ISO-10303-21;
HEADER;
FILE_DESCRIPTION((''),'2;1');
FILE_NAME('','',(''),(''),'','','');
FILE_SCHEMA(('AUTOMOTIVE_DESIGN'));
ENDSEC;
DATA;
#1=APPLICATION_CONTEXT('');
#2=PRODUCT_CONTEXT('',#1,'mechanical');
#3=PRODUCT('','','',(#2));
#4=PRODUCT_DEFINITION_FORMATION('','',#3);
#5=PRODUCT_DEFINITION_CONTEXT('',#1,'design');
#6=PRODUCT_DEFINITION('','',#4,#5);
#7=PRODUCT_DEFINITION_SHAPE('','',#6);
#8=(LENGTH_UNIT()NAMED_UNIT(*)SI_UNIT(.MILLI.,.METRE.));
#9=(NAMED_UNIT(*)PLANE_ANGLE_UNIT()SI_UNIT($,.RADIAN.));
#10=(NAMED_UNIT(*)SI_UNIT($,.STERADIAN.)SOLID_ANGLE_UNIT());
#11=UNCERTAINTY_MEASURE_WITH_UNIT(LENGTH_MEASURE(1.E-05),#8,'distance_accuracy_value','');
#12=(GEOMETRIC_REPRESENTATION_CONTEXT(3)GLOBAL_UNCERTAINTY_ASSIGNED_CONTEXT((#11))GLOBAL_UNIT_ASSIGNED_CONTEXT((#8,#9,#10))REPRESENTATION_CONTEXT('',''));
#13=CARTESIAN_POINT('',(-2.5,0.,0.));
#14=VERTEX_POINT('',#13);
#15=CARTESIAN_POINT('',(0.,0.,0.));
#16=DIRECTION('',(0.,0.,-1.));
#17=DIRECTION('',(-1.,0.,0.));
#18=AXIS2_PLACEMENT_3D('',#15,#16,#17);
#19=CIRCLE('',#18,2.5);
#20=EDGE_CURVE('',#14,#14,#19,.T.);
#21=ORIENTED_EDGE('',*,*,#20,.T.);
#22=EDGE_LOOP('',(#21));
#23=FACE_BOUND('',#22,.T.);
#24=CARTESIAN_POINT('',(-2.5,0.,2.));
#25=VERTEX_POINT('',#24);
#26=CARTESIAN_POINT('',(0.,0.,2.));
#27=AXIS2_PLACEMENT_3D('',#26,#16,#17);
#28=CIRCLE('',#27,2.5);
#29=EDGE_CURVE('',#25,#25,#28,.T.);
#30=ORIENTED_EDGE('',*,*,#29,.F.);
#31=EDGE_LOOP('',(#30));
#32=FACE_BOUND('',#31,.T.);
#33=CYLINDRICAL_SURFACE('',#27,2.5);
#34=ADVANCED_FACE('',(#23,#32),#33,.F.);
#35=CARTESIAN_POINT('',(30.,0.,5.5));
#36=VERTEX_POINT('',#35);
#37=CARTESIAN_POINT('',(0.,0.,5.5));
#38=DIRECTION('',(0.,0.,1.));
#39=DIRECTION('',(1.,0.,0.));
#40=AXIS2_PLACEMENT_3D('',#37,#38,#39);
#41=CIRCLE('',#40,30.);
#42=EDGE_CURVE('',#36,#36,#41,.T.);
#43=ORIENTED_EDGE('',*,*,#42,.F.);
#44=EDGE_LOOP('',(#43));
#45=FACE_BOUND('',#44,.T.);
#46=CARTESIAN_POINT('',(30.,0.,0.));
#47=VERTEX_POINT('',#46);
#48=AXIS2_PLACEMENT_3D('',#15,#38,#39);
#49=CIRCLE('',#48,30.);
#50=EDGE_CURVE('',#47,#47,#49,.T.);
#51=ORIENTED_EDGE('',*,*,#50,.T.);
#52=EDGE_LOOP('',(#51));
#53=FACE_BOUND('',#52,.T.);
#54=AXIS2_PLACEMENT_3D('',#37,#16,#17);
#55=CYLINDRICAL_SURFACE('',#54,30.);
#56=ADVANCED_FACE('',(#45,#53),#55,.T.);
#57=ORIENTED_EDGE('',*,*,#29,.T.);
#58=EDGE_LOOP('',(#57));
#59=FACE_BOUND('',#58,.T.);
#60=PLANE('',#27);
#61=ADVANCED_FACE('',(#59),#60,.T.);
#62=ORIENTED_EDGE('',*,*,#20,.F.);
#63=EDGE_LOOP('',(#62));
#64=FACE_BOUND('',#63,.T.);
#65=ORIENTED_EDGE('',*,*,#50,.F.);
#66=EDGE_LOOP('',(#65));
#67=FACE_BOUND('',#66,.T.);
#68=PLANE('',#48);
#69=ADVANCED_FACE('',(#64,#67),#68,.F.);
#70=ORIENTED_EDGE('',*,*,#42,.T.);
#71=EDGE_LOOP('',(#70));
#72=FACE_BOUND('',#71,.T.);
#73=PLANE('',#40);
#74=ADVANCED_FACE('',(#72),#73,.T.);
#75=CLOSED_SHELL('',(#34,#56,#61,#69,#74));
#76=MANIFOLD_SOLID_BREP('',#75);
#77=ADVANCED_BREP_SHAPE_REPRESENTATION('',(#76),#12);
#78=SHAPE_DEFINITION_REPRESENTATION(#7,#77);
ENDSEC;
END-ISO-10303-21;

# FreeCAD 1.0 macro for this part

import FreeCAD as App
import Part
import Sketcher
from FreeCAD import Vector
Q = App.Units.Quantity

doc = App.newDocument("Part")
body = doc.addObject("PartDesign::Body", "Body")

# Sketch on XY plane
sketch1 = body.newObject("Sketcher::SketchObject", "Sketch")
sketch1.AttachmentSupport = (doc.getObject("XY_Plane"), [""])
sketch1.MapMode = "FlatFace"
sketch1.addGeometry(Part.Circle(Vector(0, 0, 0), Vector(0, 0, 1), 30), False)
sketch1.addConstraint([
    Sketcher.Constraint("Coincident", 0, 3, -1, 1),
    Sketcher.Constraint("Diameter", 0, Q("60 mm")),
])
pad1 = body.newObject("PartDesign::Pad", "Pad")
pad1.Profile = sketch1
pad1.Length = 5.5

# Sketch on XY plane
sketch2 = body.newObject("Sketcher::SketchObject", "Sketch001")
sketch2.AttachmentSupport = (doc.getObject("XY_Plane"), [""])
sketch2.MapMode = "FlatFace"
sketch2.addGeometry(Part.Circle(Vector(0, 0, 0), Vector(0, 0, 1), 2.5), False)
sketch2.addConstraint([
    Sketcher.Constraint("Coincident", 0, 3, -1, 1),
    Sketcher.Constraint("Diameter", 0, Q("5 mm")),
])
pocket1 = body.newObject("PartDesign::Pocket", "Pocket")
pocket1.Profile = sketch2
pocket1.Length = 2
pocket1.Reversed = True

doc.recompute()
